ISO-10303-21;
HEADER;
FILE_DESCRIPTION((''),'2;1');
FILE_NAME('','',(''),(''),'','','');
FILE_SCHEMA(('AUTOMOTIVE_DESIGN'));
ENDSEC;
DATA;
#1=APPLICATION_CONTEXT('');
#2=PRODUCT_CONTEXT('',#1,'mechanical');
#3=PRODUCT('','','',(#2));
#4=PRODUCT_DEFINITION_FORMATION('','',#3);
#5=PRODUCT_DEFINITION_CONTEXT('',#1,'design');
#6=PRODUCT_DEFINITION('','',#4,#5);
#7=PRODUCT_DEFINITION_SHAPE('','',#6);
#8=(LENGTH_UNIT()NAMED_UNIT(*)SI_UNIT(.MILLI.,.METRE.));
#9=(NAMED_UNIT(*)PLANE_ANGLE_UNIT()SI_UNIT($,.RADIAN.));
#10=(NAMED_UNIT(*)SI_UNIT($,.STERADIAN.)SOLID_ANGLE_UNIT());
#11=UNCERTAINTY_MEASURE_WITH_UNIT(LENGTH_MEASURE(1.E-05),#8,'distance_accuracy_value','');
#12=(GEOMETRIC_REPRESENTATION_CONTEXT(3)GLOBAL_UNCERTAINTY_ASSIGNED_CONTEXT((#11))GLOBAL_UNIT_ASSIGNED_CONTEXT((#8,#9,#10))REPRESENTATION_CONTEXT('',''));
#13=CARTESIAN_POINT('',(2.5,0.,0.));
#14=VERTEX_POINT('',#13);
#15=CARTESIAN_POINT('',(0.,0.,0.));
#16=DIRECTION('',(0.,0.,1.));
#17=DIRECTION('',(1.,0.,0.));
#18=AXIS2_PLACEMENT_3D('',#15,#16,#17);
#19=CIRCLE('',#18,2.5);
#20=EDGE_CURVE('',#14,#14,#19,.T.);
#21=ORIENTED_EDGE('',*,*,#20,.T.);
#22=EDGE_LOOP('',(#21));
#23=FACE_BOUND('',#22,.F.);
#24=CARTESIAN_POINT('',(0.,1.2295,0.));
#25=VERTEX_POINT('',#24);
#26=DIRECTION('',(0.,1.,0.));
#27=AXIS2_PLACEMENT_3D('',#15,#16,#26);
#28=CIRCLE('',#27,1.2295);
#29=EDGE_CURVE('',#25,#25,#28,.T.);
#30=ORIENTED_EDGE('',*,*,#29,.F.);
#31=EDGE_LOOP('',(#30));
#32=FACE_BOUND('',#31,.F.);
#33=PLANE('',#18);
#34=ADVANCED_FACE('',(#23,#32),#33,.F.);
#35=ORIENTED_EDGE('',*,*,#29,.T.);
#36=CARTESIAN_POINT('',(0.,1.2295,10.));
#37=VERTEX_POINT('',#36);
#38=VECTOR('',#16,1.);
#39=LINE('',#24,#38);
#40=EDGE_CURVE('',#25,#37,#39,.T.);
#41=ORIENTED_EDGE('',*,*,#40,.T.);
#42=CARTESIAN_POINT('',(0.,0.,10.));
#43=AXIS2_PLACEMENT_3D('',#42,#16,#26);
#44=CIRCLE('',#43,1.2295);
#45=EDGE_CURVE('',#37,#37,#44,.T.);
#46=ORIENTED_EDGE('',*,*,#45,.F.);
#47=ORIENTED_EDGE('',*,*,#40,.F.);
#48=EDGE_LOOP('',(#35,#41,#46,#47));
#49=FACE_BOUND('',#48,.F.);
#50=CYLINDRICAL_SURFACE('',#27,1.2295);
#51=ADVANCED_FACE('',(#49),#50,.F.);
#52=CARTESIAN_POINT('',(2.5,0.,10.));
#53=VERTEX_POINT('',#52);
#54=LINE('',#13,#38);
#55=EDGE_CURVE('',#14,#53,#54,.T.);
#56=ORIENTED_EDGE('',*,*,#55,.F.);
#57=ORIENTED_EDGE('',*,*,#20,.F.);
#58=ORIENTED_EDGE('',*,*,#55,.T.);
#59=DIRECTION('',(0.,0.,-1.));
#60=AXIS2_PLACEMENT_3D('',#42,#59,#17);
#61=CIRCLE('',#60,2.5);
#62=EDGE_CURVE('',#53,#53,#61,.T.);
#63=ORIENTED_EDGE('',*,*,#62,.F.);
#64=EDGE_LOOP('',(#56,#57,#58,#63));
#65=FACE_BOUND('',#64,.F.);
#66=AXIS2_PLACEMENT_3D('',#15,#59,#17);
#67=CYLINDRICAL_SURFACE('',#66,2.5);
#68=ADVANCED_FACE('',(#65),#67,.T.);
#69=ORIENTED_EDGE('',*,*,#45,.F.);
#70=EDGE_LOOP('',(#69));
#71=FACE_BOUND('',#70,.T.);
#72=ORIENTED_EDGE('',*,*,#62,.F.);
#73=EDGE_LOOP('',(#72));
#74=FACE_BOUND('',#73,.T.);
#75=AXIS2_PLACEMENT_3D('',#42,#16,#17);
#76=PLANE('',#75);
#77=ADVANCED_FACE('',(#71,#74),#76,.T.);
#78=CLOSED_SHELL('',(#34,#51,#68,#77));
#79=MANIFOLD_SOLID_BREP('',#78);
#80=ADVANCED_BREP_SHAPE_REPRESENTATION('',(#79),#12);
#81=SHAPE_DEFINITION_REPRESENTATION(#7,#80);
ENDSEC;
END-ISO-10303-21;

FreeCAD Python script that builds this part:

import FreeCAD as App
import Part
import Sketcher
from FreeCAD import Vector

doc = App.newDocument("Part")
body = doc.addObject("PartDesign::Body", "Body")

# Sketch on XY plane
sketch1 = doc.addObject("Sketcher::SketchObject", "Sketch")
body.addObject(sketch1)
sketch1.AttachmentSupport = (doc.XY_Plane, [""])
sketch1.MapMode = "FlatFace"
sketch1.addGeometry(Part.Circle(Vector(0, 0, 0), Vector(0, 0, 1), 2.5), False)
sketch1.addConstraint([
    Sketcher.Constraint("Coincident", 0, 3, -1, 1),
    Sketcher.Constraint("Diameter", 0, 5.0),
])
pad1 = doc.addObject("PartDesign::Pad", "Pad")
body.addObject(pad1)
pad1.Profile = sketch1
pad1.Length = 10

# Sketch on XY plane
sketch2 = doc.addObject("Sketcher::SketchObject", "Sketch001")
body.addObject(sketch2)
sketch2.AttachmentSupport = (doc.XY_Plane, [""])
sketch2.MapMode = "FlatFace"
sketch2.addGeometry(Part.Circle(Vector(0, 0, 0), Vector(0, 0, 1), 1.2295), False)
sketch2.addConstraint([
    Sketcher.Constraint("Coincident", 0, 3, -1, 1),
    Sketcher.Constraint("Diameter", 0, 2.459),
])
doc.recompute()
hole = doc.addObject("PartDesign::Hole", "Hole")
body.addObject(hole)
hole.Profile = sketch2
hole.ThreadType = "None"
hole.Diameter = 2.459
hole.DepthType = "ThroughAll"
hole.Reversed = True

doc.recompute()
